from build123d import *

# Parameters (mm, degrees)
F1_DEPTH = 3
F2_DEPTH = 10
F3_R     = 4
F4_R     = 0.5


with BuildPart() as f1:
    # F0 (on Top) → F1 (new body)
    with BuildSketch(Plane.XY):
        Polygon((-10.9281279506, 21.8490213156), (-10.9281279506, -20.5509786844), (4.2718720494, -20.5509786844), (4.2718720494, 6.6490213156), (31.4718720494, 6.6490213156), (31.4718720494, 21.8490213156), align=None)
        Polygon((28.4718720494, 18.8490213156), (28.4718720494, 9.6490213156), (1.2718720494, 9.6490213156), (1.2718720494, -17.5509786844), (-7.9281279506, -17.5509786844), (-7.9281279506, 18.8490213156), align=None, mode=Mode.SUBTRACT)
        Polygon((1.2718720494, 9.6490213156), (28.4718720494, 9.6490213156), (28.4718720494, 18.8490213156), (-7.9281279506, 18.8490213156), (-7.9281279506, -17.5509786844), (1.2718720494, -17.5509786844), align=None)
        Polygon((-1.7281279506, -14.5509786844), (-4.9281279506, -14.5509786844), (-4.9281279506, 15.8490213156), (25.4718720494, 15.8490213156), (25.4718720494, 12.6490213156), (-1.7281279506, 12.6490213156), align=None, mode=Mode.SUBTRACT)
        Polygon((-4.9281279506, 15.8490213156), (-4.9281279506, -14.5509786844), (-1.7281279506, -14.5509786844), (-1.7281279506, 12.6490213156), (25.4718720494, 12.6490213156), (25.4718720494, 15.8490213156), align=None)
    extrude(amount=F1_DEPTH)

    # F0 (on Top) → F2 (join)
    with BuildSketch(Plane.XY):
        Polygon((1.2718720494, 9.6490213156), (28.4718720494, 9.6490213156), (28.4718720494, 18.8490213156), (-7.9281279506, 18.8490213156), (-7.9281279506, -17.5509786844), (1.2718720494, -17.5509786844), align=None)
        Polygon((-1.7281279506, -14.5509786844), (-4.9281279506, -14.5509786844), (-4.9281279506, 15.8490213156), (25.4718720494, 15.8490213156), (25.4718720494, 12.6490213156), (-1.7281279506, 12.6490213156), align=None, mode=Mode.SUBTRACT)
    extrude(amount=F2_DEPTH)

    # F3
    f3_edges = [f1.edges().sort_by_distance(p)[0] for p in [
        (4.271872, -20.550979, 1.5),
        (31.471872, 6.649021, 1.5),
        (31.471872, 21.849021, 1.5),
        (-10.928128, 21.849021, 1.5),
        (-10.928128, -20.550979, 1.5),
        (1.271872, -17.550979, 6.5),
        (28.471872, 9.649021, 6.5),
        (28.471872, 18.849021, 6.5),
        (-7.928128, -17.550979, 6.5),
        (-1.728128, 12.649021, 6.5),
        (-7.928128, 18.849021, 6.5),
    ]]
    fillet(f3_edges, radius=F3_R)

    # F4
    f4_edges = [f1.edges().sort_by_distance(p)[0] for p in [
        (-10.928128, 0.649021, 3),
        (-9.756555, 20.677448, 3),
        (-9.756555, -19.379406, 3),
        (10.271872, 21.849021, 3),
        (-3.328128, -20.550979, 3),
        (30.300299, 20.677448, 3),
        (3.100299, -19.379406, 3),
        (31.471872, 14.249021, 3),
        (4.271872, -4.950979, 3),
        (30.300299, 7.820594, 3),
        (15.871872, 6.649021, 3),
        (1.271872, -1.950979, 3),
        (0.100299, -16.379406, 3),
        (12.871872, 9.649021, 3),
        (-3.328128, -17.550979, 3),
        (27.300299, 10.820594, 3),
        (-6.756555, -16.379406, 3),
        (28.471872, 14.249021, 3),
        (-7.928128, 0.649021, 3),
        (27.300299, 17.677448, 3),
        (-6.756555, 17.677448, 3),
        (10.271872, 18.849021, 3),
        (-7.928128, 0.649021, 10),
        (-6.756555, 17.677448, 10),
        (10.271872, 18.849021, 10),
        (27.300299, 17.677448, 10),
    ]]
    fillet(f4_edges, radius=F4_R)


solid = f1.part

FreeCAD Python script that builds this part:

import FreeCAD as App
import Part
import Sketcher

V = App.Vector


def edges_at(feature, points):
    """Names of the edges that pass closest to the given points."""
    edges = feature.Shape.Edges
    near = lambda p: min(range(len(edges)), key=lambda i: edges[i].distToShape(Part.Vertex(*p))[0])
    return sorted({f"Edge{near(p) + 1}" for p in points})

doc = App.newDocument("Part")
params = doc.addObject("Spreadsheet::Sheet", "Params")
for row, (alias, value) in enumerate([
    ("sketch1_width", "15.2 mm"),
    ("sketch1_width2", "27.2 mm"),
    ("pad1_length", "3 mm"),
    ("sketch2_width", "27.2 mm"),
    ("sketch2_width2", "36.4 mm"),
    ("sketch2_width3", "3.2 mm"),
    ("pad2_length", "10 mm"),
    ("fillet_radius", "4 mm"),
    ("fillet2_radius", "0.5 mm"),
], start=1):
    params.set(f"A{row}", alias)
    params.set(f"B{row}", "=" + value)
    params.setAlias(f"B{row}", alias)

body = doc.addObject("PartDesign::Body", "Body")

sketch1 = body.newObject("Sketcher::SketchObject", "Sketch")
sketch1.AttachmentSupport = (doc.getObject("XY_Plane"), [""])
sketch1.MapMode = "FlatFace"
sketch1.addGeometry(Part.LineSegment(V(-11, 22, 0), V(-11, -21, 0)), False)
sketch1.addGeometry(Part.LineSegment(V(-11, -21, 0), V(4, -21, 0)), False)
sketch1.addGeometry(Part.LineSegment(V(4, -21, 0), V(4, 7, 0)), False)
sketch1.addGeometry(Part.LineSegment(V(4, 7, 0), V(31, 7, 0)), False)
sketch1.addGeometry(Part.LineSegment(V(31, 7, 0), V(31, 22, 0)), False)
sketch1.addGeometry(Part.LineSegment(V(31, 22, 0), V(-11, 22, 0)), False)
sketch1.addConstraint(Sketcher.Constraint("Coincident", 0, 2, 1, 1))
sketch1.addConstraint(Sketcher.Constraint("Coincident", 1, 2, 2, 1))
sketch1.addConstraint(Sketcher.Constraint("Coincident", 2, 2, 3, 1))
sketch1.addConstraint(Sketcher.Constraint("Coincident", 3, 2, 4, 1))
sketch1.addConstraint(Sketcher.Constraint("Coincident", 4, 2, 5, 1))
sketch1.addConstraint(Sketcher.Constraint("Coincident", 5, 2, 0, 1))
sketch1.addConstraint(Sketcher.Constraint("Vertical", 0))
sketch1.addConstraint(Sketcher.Constraint("Horizontal", 1))
sketch1.addConstraint(Sketcher.Constraint("Vertical", 2))
sketch1.addConstraint(Sketcher.Constraint("Horizontal", 3))
sketch1.addConstraint(Sketcher.Constraint("Vertical", 4))
sketch1.addConstraint(Sketcher.Constraint("Horizontal", 5))
sketch1.addConstraint(Sketcher.Constraint("Equal", 5, 0))
sketch1.addConstraint(Sketcher.Constraint("Equal", 3, 2))
sketch1.addConstraint(Sketcher.Constraint("DistanceX", 1, 1, 1, 2, 15.2))
sketch1.addConstraint(Sketcher.Constraint("DistanceX", 3, 1, 3, 2, 27.2))
sketch1.addConstraint(Sketcher.Constraint("DistanceY", 0, 2, -1, 1, 20.550979))
sketch1.addConstraint(Sketcher.Constraint("DistanceX", 0, 2, -1, 1, 10.928128))
sketch1.setExpression("Constraints[14]", "Params.sketch1_width")
sketch1.setExpression("Constraints[15]", "Params.sketch1_width2")
pad1 = body.newObject("PartDesign::Pad", "Pad")
pad1.Profile = sketch1
pad1.setExpression("Length", "Params.pad1_length")

sketch2 = body.newObject("Sketcher::SketchObject", "Sketch001")
sketch2.AttachmentSupport = (doc.getObject("XY_Plane"), [""])
sketch2.MapMode = "FlatFace"
sketch2.addGeometry(Part.LineSegment(V(1.3, 9.6, 0), V(28.5, 9.6, 0)), False)
sketch2.addGeometry(Part.LineSegment(V(28.5, 9.6, 0), V(28.5, 18.8, 0)), False)
sketch2.addGeometry(Part.LineSegment(V(28.5, 18.8, 0), V(-7.9, 18.8, 0)), False)
sketch2.addGeometry(Part.LineSegment(V(-7.9, 18.8, 0), V(-7.9, -17.6, 0)), False)
sketch2.addGeometry(Part.LineSegment(V(-7.9, -17.6, 0), V(1.3, -17.6, 0)), False)
sketch2.addGeometry(Part.LineSegment(V(1.3, -17.6, 0), V(1.3, 9.6, 0)), False)
sketch2.addGeometry(Part.LineSegment(V(-1.7, 12.6, 0), V(-1.7, -14.6, 0)), False)
sketch2.addGeometry(Part.LineSegment(V(-1.7, -14.6, 0), V(-4.9, -14.6, 0)), False)
sketch2.addGeometry(Part.LineSegment(V(-4.9, -14.6, 0), V(-4.9, 15.8, 0)), False)
sketch2.addGeometry(Part.LineSegment(V(-4.9, 15.8, 0), V(25.5, 15.8, 0)), False)
sketch2.addGeometry(Part.LineSegment(V(25.5, 15.8, 0), V(25.5, 12.6, 0)), False)
sketch2.addGeometry(Part.LineSegment(V(25.5, 12.6, 0), V(-1.7, 12.6, 0)), False)
sketch2.addConstraint(Sketcher.Constraint("Coincident", 0, 2, 1, 1))
sketch2.addConstraint(Sketcher.Constraint("Coincident", 1, 2, 2, 1))
sketch2.addConstraint(Sketcher.Constraint("Coincident", 2, 2, 3, 1))
sketch2.addConstraint(Sketcher.Constraint("Coincident", 3, 2, 4, 1))
sketch2.addConstraint(Sketcher.Constraint("Coincident", 4, 2, 5, 1))
sketch2.addConstraint(Sketcher.Constraint("Coincident", 5, 2, 0, 1))
sketch2.addConstraint(Sketcher.Constraint("Coincident", 6, 2, 7, 1))
sketch2.addConstraint(Sketcher.Constraint("Coincident", 7, 2, 8, 1))
sketch2.addConstraint(Sketcher.Constraint("Coincident", 8, 2, 9, 1))
sketch2.addConstraint(Sketcher.Constraint("Coincident", 9, 2, 10, 1))
sketch2.addConstraint(Sketcher.Constraint("Coincident", 10, 2, 11, 1))
sketch2.addConstraint(Sketcher.Constraint("Coincident", 11, 2, 6, 1))
sketch2.addConstraint(Sketcher.Constraint("Horizontal", 0))
sketch2.addConstraint(Sketcher.Constraint("Vertical", 1))
sketch2.addConstraint(Sketcher.Constraint("Horizontal", 2))
sketch2.addConstraint(Sketcher.Constraint("Vertical", 3))
sketch2.addConstraint(Sketcher.Constraint("Horizontal", 4))
sketch2.addConstraint(Sketcher.Constraint("Vertical", 5))
sketch2.addConstraint(Sketcher.Constraint("Vertical", 6))
sketch2.addConstraint(Sketcher.Constraint("Horizontal", 7))
sketch2.addConstraint(Sketcher.Constraint("Vertical", 8))
sketch2.addConstraint(Sketcher.Constraint("Horizontal", 9))
sketch2.addConstraint(Sketcher.Constraint("Vertical", 10))
sketch2.addConstraint(Sketcher.Constraint("Horizontal", 11))
sketch2.addConstraint(Sketcher.Constraint("Equal", 0, 11))
sketch2.addConstraint(Sketcher.Constraint("Equal", 4, 1))
sketch2.addConstraint(Sketcher.Constraint("Equal", 2, 3))
sketch2.addConstraint(Sketcher.Constraint("Equal", 5, 6))
sketch2.addConstraint(Sketcher.Constraint("Equal", 9, 8))
sketch2.addConstraint(Sketcher.Constraint("DistanceX", 0, 1, 0, 2, 27.2))
sketch2.addConstraint(Sketcher.Constraint("DistanceX", 2, 2, 2, 1, 36.4))
sketch2.addConstraint(Sketcher.Constraint("DistanceX", 7, 2, 7, 1, 3.2))
sketch2.addConstraint(Sketcher.Constraint("DistanceX", 6, 2, 4, 2, 3.0))
sketch2.addConstraint(Sketcher.Constraint("DistanceY", 4, 2, 6, 2, 3.0))
sketch2.addConstraint(Sketcher.Constraint("DistanceY", -1, 1, 0, 2, 9.649021))
sketch2.addConstraint(Sketcher.Constraint("DistanceX", -1, 1, 0, 2, 28.471872))
sketch2.setExpression("Constraints[29]", "Params.sketch2_width")
sketch2.setExpression("Constraints[30]", "Params.sketch2_width2")
sketch2.setExpression("Constraints[31]", "Params.sketch2_width3")
pad2 = body.newObject("PartDesign::Pad", "Pad001")
pad2.Profile = sketch2
pad2.setExpression("Length", "Params.pad2_length")
doc.recompute()

fillet = body.newObject("PartDesign::Fillet", "Fillet")
fillet.Base = (pad2, edges_at(pad2, [
    (4.272, -20.551, 1.5),
    (31.472, 6.649, 1.5),
    (31.472, 21.849, 1.5),
    (-10.928, 21.849, 1.5),
    (-10.928, -20.551, 1.5),
    (1.272, -17.551, 6.5),
    (28.472, 9.649, 6.5),
    (28.472, 18.849, 6.5),
    (-7.928, -17.551, 6.5),
    (-1.728, 12.649, 6.5),
    (-7.928, 18.849, 6.5),
]))
fillet.setExpression("Radius", "Params.fillet_radius")
doc.recompute()

fillet2 = body.newObject("PartDesign::Fillet", "Fillet001")
fillet2.Base = (fillet, edges_at(fillet, [
    (-10.928, 0.649, 3),
    (-9.757, 20.677, 3),
    (-9.757, -19.379, 3),
    (10.272, 21.849, 3),
    (-3.328, -20.551, 3),
    (30.3, 20.677, 3),
    (3.1, -19.379, 3),
    (31.472, 14.249, 3),
    (4.272, -4.951, 3),
    (30.3, 7.821, 3),
    (15.872, 6.649, 3),
    (1.272, -1.951, 3),
    (0.1, -16.379, 3),
    (12.872, 9.649, 3),
    (-3.328, -17.551, 3),
    (27.3, 10.821, 3),
    (-6.757, -16.379, 3),
    (28.472, 14.249, 3),
    (-7.928, 0.649, 3),
    (27.3, 17.677, 3),
    (-6.757, 17.677, 3),
    (10.272, 18.849, 3),
    (-7.928, 0.649, 10),
    (-6.757, 17.677, 10),
    (10.272, 18.849, 10),
    (27.3, 17.677, 10),
]))
fillet2.setExpression("Radius", "Params.fillet2_radius")

doc.recompute()
